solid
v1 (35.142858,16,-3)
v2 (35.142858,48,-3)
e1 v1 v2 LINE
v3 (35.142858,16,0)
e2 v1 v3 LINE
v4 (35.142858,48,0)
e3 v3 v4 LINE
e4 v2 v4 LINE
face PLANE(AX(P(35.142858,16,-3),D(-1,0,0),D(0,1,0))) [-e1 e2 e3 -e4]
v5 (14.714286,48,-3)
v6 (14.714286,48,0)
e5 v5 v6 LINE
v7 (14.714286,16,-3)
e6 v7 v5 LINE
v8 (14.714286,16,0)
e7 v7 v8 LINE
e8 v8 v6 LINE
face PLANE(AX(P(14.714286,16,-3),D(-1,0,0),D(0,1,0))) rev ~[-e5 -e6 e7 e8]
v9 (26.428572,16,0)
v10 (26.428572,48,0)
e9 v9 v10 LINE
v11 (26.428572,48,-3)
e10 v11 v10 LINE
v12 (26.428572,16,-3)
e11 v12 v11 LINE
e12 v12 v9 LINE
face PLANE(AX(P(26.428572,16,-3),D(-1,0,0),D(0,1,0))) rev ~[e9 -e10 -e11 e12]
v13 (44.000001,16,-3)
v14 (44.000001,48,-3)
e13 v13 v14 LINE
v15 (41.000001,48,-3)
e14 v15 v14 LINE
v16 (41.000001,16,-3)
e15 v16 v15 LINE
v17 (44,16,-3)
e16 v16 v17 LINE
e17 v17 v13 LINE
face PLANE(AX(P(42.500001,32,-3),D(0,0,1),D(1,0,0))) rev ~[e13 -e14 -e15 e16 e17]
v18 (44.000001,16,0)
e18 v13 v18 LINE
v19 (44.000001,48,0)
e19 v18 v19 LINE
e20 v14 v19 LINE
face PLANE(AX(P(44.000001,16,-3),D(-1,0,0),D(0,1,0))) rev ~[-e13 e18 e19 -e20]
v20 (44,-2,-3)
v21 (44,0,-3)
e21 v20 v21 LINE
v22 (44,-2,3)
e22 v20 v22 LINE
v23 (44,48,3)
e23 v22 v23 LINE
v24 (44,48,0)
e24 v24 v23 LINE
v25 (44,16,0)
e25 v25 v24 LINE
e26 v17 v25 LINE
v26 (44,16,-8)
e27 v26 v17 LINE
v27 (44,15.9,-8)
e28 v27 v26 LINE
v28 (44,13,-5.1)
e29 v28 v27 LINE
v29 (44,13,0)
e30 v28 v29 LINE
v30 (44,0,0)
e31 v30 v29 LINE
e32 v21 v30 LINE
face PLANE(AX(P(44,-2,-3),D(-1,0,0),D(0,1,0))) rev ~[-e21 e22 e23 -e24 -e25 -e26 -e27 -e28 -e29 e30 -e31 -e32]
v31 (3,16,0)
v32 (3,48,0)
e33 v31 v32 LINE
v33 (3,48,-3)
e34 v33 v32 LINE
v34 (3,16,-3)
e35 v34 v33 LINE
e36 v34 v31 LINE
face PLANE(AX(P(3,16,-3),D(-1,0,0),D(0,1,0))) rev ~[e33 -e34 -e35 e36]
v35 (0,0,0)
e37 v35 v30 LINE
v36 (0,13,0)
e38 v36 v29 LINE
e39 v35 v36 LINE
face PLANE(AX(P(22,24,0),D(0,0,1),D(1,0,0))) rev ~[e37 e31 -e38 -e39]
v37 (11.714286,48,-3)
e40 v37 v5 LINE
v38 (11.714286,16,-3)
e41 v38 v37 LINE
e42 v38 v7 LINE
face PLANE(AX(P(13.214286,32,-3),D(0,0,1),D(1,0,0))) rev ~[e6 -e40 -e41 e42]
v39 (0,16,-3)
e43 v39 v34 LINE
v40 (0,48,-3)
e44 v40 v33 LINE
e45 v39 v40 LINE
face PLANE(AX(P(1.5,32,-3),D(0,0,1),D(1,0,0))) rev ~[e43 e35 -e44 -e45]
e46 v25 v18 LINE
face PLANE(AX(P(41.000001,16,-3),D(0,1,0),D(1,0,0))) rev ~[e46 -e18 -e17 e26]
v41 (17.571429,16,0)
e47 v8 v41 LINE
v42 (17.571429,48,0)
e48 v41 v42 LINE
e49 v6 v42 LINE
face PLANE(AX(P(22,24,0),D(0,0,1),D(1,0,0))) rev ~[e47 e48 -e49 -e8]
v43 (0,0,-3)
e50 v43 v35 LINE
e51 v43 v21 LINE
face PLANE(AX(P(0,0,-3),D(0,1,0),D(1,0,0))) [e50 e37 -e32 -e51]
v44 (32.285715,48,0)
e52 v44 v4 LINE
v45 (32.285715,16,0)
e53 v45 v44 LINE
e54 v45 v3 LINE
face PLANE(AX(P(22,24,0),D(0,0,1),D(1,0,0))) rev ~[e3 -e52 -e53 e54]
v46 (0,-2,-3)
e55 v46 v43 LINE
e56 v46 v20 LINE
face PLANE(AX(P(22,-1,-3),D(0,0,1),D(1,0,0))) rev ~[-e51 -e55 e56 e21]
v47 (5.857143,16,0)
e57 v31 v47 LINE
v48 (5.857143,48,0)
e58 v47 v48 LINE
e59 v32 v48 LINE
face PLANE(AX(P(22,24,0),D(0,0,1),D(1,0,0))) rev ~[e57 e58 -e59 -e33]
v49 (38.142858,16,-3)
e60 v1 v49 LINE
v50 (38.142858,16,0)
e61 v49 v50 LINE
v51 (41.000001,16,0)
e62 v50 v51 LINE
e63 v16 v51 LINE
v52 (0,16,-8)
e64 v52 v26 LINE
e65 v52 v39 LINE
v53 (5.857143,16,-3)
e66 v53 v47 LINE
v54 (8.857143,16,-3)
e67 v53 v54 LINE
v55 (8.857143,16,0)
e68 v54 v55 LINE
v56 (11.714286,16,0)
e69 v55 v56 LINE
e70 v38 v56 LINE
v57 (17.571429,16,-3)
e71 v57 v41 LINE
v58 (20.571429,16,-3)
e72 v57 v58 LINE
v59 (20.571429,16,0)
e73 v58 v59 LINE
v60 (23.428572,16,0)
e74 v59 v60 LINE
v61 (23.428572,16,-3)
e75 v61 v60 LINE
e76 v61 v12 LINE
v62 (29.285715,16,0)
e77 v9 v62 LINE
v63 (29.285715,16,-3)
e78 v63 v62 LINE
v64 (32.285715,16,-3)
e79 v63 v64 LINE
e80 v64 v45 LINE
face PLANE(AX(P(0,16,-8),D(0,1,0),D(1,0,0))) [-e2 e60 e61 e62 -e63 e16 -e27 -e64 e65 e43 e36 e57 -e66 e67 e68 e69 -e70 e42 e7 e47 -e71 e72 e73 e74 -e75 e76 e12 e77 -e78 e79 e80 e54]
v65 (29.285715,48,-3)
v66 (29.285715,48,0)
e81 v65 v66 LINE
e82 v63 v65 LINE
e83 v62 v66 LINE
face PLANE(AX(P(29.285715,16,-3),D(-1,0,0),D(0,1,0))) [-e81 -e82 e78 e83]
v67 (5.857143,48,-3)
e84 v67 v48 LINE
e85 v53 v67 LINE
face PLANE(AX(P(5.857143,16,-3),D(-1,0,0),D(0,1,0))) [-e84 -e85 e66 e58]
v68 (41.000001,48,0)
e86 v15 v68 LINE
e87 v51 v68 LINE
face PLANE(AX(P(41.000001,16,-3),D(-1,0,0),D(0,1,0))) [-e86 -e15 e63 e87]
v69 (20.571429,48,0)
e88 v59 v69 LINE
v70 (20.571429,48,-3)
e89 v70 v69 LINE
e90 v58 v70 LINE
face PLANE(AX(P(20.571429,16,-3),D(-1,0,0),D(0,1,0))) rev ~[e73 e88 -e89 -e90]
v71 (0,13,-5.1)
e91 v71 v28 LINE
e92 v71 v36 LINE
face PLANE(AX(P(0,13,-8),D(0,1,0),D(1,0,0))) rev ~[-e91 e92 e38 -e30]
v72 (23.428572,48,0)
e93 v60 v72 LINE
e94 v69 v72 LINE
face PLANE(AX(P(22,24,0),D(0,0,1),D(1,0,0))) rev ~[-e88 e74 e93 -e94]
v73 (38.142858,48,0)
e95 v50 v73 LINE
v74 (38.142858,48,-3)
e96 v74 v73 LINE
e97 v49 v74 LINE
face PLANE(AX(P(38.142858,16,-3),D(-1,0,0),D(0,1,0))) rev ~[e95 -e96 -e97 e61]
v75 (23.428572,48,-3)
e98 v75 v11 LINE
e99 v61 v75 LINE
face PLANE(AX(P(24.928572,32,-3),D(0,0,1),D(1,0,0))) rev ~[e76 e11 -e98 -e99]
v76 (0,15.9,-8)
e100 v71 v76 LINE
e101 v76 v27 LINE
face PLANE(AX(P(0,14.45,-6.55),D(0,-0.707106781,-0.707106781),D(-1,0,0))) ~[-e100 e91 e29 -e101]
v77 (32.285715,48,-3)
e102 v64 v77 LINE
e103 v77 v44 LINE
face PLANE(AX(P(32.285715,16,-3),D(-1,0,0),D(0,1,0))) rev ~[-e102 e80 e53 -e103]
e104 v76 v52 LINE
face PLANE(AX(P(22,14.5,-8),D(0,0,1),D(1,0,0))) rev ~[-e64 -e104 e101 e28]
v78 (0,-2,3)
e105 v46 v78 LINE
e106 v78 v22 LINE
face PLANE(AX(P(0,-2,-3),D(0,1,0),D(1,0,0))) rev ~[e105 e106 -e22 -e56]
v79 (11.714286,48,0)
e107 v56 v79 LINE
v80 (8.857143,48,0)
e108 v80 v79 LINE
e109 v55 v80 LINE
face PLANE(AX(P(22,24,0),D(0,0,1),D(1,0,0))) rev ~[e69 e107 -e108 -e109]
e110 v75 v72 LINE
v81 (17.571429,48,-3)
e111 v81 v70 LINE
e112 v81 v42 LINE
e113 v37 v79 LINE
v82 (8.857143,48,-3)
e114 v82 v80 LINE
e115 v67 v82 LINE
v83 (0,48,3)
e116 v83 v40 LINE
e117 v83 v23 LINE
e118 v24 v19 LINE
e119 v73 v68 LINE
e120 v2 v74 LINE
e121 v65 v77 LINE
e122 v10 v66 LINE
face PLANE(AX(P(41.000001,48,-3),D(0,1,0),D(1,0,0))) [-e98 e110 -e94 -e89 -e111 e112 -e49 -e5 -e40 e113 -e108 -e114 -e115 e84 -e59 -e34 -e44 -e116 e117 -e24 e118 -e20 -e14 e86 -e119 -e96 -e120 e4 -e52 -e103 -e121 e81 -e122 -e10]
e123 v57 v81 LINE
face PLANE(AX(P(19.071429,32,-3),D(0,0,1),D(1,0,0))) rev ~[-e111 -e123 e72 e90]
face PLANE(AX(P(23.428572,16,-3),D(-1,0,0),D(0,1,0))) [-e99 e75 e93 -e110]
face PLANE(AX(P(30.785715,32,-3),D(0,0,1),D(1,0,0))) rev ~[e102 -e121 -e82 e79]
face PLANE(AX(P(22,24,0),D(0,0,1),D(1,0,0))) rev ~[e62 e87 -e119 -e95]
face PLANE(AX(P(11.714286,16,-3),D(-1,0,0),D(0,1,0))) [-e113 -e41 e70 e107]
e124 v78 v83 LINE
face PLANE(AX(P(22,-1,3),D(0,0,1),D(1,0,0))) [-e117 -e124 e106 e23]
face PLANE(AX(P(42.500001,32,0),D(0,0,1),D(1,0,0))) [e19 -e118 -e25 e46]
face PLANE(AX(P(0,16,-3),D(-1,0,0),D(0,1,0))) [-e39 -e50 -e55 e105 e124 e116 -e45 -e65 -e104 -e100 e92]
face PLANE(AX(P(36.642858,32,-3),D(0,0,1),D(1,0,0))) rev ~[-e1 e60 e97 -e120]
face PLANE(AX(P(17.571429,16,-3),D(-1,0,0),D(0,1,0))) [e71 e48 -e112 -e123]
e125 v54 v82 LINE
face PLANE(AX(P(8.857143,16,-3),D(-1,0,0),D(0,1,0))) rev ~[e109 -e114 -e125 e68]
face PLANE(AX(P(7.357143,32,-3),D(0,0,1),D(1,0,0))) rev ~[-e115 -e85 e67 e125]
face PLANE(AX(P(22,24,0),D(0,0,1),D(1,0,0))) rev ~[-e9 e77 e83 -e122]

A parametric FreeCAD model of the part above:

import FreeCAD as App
import Part
import Sketcher

V = App.Vector
Q = App.Units.Quantity


def edges_at(feature, points):
    """Names of the edges that pass closest to the given points."""
    edges = feature.Shape.Edges
    near = lambda p: min(range(len(edges)), key=lambda i: edges[i].distToShape(Part.Vertex(*p))[0])
    return sorted({f"Edge{near(p) + 1}" for p in points})

doc = App.newDocument("Part")
body = doc.addObject("PartDesign::Body", "Body")

# Sketch on XY plane
sketch1 = body.newObject("Sketcher::SketchObject", "Sketch")
sketch1.AttachmentSupport = (doc.getObject("XY_Plane"), [""])
sketch1.MapMode = "FlatFace"
sketch1.addGeometry(Part.LineSegment(V(0, 48, 0), V(0, 0, 0)), False)
sketch1.addGeometry(Part.LineSegment(V(0, 0, 0), V(44, 0, 0)), False)
sketch1.addGeometry(Part.LineSegment(V(44, 0, 0), V(44, 48, 0)), False)
sketch1.addGeometry(Part.LineSegment(V(44, 48, 0), V(0, 48, 0)), False)
sketch1.addConstraint(Sketcher.Constraint("Coincident", 0, 2, 1, 1))
sketch1.addConstraint(Sketcher.Constraint("Coincident", 1, 2, 2, 1))
sketch1.addConstraint(Sketcher.Constraint("Coincident", 2, 2, 3, 1))
sketch1.addConstraint(Sketcher.Constraint("Coincident", 3, 2, 0, 1))
sketch1.addConstraint(Sketcher.Constraint("Vertical", 0))
sketch1.addConstraint(Sketcher.Constraint("Horizontal", 1))
sketch1.addConstraint(Sketcher.Constraint("Vertical", 2))
sketch1.addConstraint(Sketcher.Constraint("Horizontal", 3))
sketch1.addConstraint(Sketcher.Constraint("Coincident", 0, 2, -1, 1))
sketch1.addConstraint(Sketcher.Constraint("DistanceX", 1, 1, 1, 2, Q("44 mm")))
sketch1.addConstraint(Sketcher.Constraint("DistanceY", 0, 2, 0, 1, Q("48 mm")))
pad1 = body.newObject("PartDesign::Pad", "Pad")
pad1.Profile = sketch1
pad1.Length = 3

# Sketch on XY plane
sketch2 = body.newObject("Sketcher::SketchObject", "Sketch001")
sketch2.AttachmentSupport = (doc.getObject("XY_Plane"), [""])
sketch2.MapMode = "FlatFace"
sketch2.AttachmentOffset = App.Placement(V(0, 0, -3), App.Rotation())
sketch2.addGeometry(Part.LineSegment(V(0, 0, 0), V(0, -2, 0)), False)
sketch2.addGeometry(Part.LineSegment(V(0, -2, 0), V(44, -2, 0)), False)
sketch2.addGeometry(Part.LineSegment(V(44, -2, 0), V(44, 0, 0)), False)
sketch2.addGeometry(Part.LineSegment(V(44, 0, 0), V(0, 0, 0)), False)
sketch2.addConstraint(Sketcher.Constraint("Coincident", 0, 2, 1, 1))
sketch2.addConstraint(Sketcher.Constraint("Coincident", 1, 2, 2, 1))
sketch2.addConstraint(Sketcher.Constraint("Coincident", 2, 2, 3, 1))
sketch2.addConstraint(Sketcher.Constraint("Coincident", 3, 2, 0, 1))
sketch2.addConstraint(Sketcher.Constraint("Vertical", 0))
sketch2.addConstraint(Sketcher.Constraint("Horizontal", 1))
sketch2.addConstraint(Sketcher.Constraint("Vertical", 2))
sketch2.addConstraint(Sketcher.Constraint("Horizontal", 3))
sketch2.addConstraint(Sketcher.Constraint("Coincident", 3, 2, -1, 1))
sketch2.addConstraint(Sketcher.Constraint("DistanceX", 1, 1, 1, 2, Q("44 mm")))
sketch2.addConstraint(Sketcher.Constraint("DistanceY", 0, 2, 0, 1, Q("2 mm")))
pad2 = body.newObject("PartDesign::Pad", "Pad001")
pad2.Profile = sketch2
pad2.Length = 6

# Sketch on XY plane
sketch3 = body.newObject("Sketcher::SketchObject", "Sketch002")
sketch3.AttachmentSupport = (doc.getObject("XY_Plane"), [""])
sketch3.MapMode = "FlatFace"
sketch3.AttachmentOffset = App.Placement(V(0, 0, -8), App.Rotation())
sketch3.addGeometry(Part.LineSegment(V(0, 16, 0), V(0, 13, 0)), False)
sketch3.addGeometry(Part.LineSegment(V(0, 13, 0), V(44, 13, 0)), False)
sketch3.addGeometry(Part.LineSegment(V(44, 13, 0), V(44, 16, 0)), False)
sketch3.addGeometry(Part.LineSegment(V(44, 16, 0), V(0, 16, 0)), False)
sketch3.addConstraint(Sketcher.Constraint("Coincident", 0, 2, 1, 1))
sketch3.addConstraint(Sketcher.Constraint("Coincident", 1, 2, 2, 1))
sketch3.addConstraint(Sketcher.Constraint("Coincident", 2, 2, 3, 1))
sketch3.addConstraint(Sketcher.Constraint("Coincident", 3, 2, 0, 1))
sketch3.addConstraint(Sketcher.Constraint("Vertical", 0))
sketch3.addConstraint(Sketcher.Constraint("Horizontal", 1))
sketch3.addConstraint(Sketcher.Constraint("Vertical", 2))
sketch3.addConstraint(Sketcher.Constraint("Horizontal", 3))
sketch3.addConstraint(Sketcher.Constraint("PointOnObject", 0, 2, -2))
sketch3.addConstraint(Sketcher.Constraint("DistanceX", 1, 1, 1, 2, Q("44 mm")))
sketch3.addConstraint(Sketcher.Constraint("DistanceY", 0, 2, 0, 1, Q("3 mm")))
sketch3.addConstraint(Sketcher.Constraint("DistanceY", -1, 1, 0, 2, Q("13 mm")))
pad3 = body.newObject("PartDesign::Pad", "Pad002")
pad3.Profile = sketch3
pad3.Length = 8
doc.recompute()

chamfer = body.newObject("PartDesign::Chamfer", "Chamfer")
chamfer.Base = (pad3, edges_at(pad3, [(22, 13, -8)]))
chamfer.Size = 2.9

# Sketch on XY plane
sketch4 = body.newObject("Sketcher::SketchObject", "Sketch003")
sketch4.AttachmentSupport = (doc.getObject("XY_Plane"), [""])
sketch4.MapMode = "FlatFace"
sketch4.AttachmentOffset = App.Placement(V(0, 0, -3), App.Rotation())
sketch4.addGeometry(Part.LineSegment(V(0, 48, 0), V(0, 16, 0)), False)
sketch4.addGeometry(Part.LineSegment(V(0, 16, 0), V(3, 16, 0)), False)
sketch4.addGeometry(Part.LineSegment(V(3, 16, 0), V(3, 48, 0)), False)
sketch4.addGeometry(Part.LineSegment(V(3, 48, 0), V(0, 48, 0)), False)
sketch4.addConstraint(Sketcher.Constraint("Coincident", 0, 2, 1, 1))
sketch4.addConstraint(Sketcher.Constraint("Coincident", 1, 2, 2, 1))
sketch4.addConstraint(Sketcher.Constraint("Coincident", 2, 2, 3, 1))
sketch4.addConstraint(Sketcher.Constraint("Coincident", 3, 2, 0, 1))
sketch4.addConstraint(Sketcher.Constraint("Vertical", 0))
sketch4.addConstraint(Sketcher.Constraint("Horizontal", 1))
sketch4.addConstraint(Sketcher.Constraint("Vertical", 2))
sketch4.addConstraint(Sketcher.Constraint("Horizontal", 3))
sketch4.addConstraint(Sketcher.Constraint("PointOnObject", 0, 2, -2))
sketch4.addConstraint(Sketcher.Constraint("DistanceX", 1, 1, 1, 2, Q("3 mm")))
sketch4.addConstraint(Sketcher.Constraint("DistanceY", 0, 2, 0, 1, Q("32 mm")))
sketch4.addConstraint(Sketcher.Constraint("DistanceY", -1, 1, 0, 2, Q("16 mm")))
pad4 = body.newObject("PartDesign::Pad", "Pad003")
pad4.Profile = sketch4
pad4.Length = 3
doc.recompute()

linearpattern = body.newObject("PartDesign::LinearPattern", "LinearPattern")
linearpattern.Originals = [pad4]
linearpattern.Direction = (doc.getObject("X_Axis"), [""])
linearpattern.Mode = "offset"
linearpattern.Offset = 5.857143
linearpattern.Occurrences = 8
body.Tip = linearpattern

doc.recompute()
